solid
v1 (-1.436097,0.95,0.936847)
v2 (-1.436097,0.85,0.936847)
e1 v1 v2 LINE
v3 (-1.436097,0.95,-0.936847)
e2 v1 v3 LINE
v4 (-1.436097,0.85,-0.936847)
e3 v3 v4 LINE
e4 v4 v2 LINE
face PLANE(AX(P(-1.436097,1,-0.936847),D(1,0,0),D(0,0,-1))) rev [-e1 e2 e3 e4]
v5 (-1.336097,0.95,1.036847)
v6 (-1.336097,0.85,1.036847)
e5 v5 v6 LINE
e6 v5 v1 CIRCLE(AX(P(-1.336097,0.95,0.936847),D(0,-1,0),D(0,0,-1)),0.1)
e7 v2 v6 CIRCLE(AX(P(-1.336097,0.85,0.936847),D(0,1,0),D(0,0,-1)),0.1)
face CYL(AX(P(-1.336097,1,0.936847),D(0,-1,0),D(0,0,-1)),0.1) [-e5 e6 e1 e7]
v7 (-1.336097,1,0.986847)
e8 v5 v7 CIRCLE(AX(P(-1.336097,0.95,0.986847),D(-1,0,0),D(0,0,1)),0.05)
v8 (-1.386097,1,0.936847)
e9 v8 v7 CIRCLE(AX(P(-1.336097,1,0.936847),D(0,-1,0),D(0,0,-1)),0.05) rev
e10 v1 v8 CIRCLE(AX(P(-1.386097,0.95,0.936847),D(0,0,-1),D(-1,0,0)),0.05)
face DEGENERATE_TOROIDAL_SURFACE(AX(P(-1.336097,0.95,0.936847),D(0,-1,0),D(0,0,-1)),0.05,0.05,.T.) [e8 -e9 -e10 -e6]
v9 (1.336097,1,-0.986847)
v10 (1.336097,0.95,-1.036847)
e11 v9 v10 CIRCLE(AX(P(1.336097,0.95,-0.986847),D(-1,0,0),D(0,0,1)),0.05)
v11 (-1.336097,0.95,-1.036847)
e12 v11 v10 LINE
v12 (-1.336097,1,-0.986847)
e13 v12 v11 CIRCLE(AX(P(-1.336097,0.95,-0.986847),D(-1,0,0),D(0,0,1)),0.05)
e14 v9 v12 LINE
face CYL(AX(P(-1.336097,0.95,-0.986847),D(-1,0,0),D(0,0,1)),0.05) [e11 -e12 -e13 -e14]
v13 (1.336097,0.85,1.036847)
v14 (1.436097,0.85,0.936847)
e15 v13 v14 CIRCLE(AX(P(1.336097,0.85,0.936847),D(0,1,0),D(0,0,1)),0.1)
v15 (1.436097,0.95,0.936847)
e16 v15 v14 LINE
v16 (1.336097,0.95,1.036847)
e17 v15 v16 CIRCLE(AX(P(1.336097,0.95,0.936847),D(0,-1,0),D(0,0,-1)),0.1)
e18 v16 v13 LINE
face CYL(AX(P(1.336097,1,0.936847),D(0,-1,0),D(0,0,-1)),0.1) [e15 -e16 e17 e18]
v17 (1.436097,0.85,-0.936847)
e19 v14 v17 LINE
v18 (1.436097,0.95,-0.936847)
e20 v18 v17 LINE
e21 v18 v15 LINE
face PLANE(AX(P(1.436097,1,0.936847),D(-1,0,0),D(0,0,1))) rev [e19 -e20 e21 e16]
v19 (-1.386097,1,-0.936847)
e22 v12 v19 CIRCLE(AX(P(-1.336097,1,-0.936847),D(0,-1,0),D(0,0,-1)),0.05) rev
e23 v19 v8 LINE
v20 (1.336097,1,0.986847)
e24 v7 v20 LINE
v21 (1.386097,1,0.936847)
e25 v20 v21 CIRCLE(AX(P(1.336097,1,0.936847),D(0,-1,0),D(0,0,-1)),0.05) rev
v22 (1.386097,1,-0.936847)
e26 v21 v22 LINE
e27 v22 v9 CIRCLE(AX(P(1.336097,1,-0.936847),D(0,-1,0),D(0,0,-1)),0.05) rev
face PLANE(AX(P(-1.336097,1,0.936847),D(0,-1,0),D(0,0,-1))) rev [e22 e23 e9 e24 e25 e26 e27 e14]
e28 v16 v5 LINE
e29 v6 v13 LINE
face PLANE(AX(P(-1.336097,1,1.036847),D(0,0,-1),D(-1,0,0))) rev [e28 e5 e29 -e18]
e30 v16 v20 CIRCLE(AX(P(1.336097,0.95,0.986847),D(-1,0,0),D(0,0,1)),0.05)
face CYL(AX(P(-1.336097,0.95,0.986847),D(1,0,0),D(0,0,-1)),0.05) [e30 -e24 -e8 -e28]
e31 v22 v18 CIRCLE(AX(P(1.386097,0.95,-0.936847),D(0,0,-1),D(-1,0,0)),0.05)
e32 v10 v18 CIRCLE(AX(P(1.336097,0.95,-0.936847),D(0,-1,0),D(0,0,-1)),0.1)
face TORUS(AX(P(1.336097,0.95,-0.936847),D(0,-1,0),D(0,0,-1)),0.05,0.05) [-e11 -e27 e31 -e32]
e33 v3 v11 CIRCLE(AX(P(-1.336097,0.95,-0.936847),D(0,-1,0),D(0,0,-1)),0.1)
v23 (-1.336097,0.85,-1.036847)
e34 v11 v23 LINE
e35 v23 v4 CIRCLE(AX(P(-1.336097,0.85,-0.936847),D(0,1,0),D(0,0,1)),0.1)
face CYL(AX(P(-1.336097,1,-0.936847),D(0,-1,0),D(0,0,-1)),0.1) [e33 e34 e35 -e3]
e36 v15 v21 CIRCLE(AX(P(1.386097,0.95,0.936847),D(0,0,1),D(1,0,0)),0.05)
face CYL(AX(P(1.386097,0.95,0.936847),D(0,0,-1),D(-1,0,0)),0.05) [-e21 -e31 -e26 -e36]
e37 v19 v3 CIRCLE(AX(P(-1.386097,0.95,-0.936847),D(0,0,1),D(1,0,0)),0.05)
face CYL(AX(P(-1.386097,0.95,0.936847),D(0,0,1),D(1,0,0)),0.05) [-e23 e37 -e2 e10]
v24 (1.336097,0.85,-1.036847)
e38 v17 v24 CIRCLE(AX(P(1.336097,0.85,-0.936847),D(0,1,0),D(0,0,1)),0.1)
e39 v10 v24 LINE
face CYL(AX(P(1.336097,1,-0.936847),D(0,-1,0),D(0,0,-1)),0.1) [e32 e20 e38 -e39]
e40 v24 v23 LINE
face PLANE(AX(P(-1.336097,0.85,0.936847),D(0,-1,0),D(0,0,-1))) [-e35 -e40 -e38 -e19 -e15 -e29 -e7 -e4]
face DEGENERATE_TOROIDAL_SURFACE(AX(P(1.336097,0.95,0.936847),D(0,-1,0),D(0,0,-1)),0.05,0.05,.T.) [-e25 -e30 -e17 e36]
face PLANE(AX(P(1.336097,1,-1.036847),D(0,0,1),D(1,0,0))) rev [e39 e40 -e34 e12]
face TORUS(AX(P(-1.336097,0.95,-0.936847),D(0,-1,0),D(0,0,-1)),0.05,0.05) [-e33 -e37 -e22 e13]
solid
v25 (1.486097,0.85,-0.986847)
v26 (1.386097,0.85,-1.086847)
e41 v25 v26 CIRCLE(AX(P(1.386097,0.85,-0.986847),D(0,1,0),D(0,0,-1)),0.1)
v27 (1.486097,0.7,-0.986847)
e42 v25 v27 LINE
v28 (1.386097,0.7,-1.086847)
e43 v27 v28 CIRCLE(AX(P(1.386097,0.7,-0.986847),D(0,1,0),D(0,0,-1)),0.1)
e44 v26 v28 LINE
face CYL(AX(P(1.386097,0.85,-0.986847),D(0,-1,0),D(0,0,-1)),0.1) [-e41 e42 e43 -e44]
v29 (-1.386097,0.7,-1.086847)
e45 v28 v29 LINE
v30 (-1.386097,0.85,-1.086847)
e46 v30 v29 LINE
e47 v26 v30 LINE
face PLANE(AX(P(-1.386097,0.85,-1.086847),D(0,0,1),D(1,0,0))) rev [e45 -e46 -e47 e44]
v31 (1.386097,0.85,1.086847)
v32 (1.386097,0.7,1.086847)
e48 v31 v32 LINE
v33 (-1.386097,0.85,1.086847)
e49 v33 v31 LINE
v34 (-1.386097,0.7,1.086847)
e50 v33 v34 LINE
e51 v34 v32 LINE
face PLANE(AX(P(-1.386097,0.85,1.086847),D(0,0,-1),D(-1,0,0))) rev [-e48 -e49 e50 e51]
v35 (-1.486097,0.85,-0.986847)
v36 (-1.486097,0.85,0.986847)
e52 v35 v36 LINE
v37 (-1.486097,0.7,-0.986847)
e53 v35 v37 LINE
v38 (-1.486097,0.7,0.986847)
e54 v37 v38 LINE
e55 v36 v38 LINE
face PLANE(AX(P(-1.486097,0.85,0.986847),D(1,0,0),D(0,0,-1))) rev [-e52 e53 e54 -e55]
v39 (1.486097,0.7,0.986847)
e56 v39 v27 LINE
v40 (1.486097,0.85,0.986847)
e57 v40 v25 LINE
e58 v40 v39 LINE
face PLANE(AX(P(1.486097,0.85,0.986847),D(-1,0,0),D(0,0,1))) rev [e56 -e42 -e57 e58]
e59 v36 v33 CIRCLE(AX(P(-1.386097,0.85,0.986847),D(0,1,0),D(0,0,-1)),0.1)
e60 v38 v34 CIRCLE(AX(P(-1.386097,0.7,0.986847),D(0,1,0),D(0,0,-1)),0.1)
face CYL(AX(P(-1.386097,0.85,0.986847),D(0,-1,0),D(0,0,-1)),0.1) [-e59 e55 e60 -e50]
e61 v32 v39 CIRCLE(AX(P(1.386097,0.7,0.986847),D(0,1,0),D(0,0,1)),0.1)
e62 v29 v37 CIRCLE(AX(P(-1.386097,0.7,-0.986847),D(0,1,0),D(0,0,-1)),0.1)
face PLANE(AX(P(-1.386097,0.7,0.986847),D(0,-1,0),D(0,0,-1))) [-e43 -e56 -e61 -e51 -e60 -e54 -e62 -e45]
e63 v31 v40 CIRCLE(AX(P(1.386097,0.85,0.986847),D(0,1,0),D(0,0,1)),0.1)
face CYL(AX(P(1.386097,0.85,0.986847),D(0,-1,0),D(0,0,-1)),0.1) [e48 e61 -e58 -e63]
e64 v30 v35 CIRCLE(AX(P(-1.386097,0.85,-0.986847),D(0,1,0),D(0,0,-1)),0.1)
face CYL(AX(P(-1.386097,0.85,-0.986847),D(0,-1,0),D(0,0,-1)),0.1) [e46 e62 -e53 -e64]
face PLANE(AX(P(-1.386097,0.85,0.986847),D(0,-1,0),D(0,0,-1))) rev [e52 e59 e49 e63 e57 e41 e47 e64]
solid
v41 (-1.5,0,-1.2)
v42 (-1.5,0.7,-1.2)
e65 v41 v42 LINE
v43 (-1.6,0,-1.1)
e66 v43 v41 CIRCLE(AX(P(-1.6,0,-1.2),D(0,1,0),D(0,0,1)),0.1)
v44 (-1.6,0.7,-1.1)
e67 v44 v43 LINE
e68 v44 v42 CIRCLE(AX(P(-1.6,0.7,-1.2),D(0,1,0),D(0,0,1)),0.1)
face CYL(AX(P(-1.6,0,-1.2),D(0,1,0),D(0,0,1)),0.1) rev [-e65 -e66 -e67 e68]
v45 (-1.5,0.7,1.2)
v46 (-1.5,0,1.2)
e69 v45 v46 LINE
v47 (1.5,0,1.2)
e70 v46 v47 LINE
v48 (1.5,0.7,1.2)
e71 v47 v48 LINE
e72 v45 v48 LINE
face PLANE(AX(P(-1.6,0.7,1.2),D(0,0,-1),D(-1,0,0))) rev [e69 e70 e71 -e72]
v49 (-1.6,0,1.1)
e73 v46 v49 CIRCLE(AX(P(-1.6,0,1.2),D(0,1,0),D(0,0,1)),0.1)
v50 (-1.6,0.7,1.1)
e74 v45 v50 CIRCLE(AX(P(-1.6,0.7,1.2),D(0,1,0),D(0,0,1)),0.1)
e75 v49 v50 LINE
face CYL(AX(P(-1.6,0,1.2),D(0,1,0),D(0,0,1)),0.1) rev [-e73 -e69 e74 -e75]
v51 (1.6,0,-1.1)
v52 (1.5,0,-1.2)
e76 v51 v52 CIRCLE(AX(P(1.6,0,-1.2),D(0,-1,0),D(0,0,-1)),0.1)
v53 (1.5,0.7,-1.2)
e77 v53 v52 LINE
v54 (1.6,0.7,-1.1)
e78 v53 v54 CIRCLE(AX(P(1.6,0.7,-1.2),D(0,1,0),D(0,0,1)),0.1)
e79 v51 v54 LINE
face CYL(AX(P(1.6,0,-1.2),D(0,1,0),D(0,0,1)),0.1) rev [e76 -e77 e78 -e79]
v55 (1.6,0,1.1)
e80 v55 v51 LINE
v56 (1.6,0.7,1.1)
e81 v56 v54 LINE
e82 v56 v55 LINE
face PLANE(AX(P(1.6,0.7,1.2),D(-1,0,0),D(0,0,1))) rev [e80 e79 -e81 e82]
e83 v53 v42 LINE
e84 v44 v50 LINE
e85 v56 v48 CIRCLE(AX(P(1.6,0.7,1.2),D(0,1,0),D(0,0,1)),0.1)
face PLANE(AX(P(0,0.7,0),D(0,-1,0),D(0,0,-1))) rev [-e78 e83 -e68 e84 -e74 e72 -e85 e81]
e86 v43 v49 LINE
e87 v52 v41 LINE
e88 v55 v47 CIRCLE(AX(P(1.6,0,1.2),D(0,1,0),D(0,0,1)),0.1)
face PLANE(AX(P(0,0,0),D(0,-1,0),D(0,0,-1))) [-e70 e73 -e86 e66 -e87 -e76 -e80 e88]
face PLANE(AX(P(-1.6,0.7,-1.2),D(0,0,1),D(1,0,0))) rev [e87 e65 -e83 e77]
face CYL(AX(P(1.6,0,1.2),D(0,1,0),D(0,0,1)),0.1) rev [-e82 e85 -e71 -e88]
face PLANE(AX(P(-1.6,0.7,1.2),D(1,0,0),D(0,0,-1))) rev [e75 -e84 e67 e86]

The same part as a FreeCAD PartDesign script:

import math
import FreeCAD as App
import Part
import Sketcher
Q = App.Units.Quantity


def edges_at(feature, points):
    """Names of the edges that pass closest to the given points."""
    edges = feature.Shape.Edges
    near = lambda p: min(range(len(edges)), key=lambda i: edges[i].distToShape(Part.Vertex(*p))[0])
    return sorted({f"Edge{near(p) + 1}" for p in points})

doc = App.newDocument("Part")
body = doc.addObject("PartDesign::Body", "Body")

# Sketch on XZ plane
sketch1 = body.newObject("Sketcher::SketchObject", "Sketch")
sketch1.AttachmentSupport = (doc.getObject("XZ_Plane"), [""])
sketch1.MapMode = "FlatFace"
sketch1.addGeometry([
    Part.LineSegment(App.Vector(-1.6, -1.2, 0), App.Vector(-1.6, 1.2, 0)),
    Part.LineSegment(App.Vector(-1.6, 1.2, 0), App.Vector(1.6, 1.2, 0)),
    Part.LineSegment(App.Vector(1.6, 1.2, 0), App.Vector(1.6, -1.2, 0)),
    Part.LineSegment(App.Vector(1.6, -1.2, 0), App.Vector(-1.6, -1.2, 0)),
], False)
sketch1.addConstraint([
    Sketcher.Constraint("Coincident", 0, 2, 1, 1),
    Sketcher.Constraint("Coincident", 1, 2, 2, 1),
    Sketcher.Constraint("Coincident", 2, 2, 3, 1),
    Sketcher.Constraint("Coincident", 3, 2, 0, 1),
    Sketcher.Constraint("Vertical", 0),
    Sketcher.Constraint("Horizontal", 1),
    Sketcher.Constraint("Vertical", 2),
    Sketcher.Constraint("Horizontal", 3),
    Sketcher.Constraint("Symmetric", 0, 2, 2, 2, -1, 1),
    Sketcher.Constraint("DistanceX", 1, 1, 1, 2, Q("3.2 mm")),
    Sketcher.Constraint("DistanceY", 0, 1, 0, 2, Q("2.4 mm")),
])
pad1 = body.newObject("PartDesign::Pad", "Pad")
pad1.Profile = sketch1
pad1.Length = 0.7
pad1.Reversed = True

# Sketch on XZ plane
sketch2 = body.newObject("Sketcher::SketchObject", "Sketch001")
sketch2.AttachmentSupport = (doc.getObject("XZ_Plane"), [""])
sketch2.MapMode = "FlatFace"
sketch2.AttachmentOffset = App.Placement(App.Vector(0, 0, -0.7), App.Rotation())
sketch2.addGeometry([
    Part.Circle(App.Vector(-1.6, -1.2, 0), App.Vector(0, 0, 1), 0.1),
    Part.Circle(App.Vector(1.6, -1.2, 0), App.Vector(0, 0, 1), 0.1),
    Part.Circle(App.Vector(1.6, 1.2, 0), App.Vector(0, 0, 1), 0.1),
    Part.Circle(App.Vector(-1.6, 1.2, 0), App.Vector(0, 0, 1), 0.1),
], False)
sketch2.addConstraint([
    Sketcher.Constraint("Equal", 0, 1),
    Sketcher.Constraint("Equal", 1, 2),
    Sketcher.Constraint("Equal", 2, 3),
    Sketcher.Constraint("Symmetric", 0, 3, 2, 3, -1, 1),
    Sketcher.Constraint("Symmetric", 1, 3, 3, 3, -1, 1),
    Sketcher.Constraint("Symmetric", 0, 3, 1, 3, -2),
    Sketcher.Constraint("Diameter", 0, Q("0.2 mm")),
    Sketcher.Constraint("DistanceX", 0, 3, -1, 1, Q("1.6 mm")),
    Sketcher.Constraint("DistanceY", 0, 3, -1, 1, Q("1.2 mm")),
])
pocket1 = body.newObject("PartDesign::Pocket", "Pocket")
pocket1.Profile = sketch2
pocket1.Type = "ThroughAll"
pocket1.Reversed = True
body2 = doc.addObject("PartDesign::Body", "Body001")

# Sketch on XZ plane
sketch3 = body2.newObject("Sketcher::SketchObject", "Sketch002")
sketch3.AttachmentSupport = (doc.getObject("XZ_Plane001"), [""])
sketch3.MapMode = "FlatFace"
sketch3.AttachmentOffset = App.Placement(App.Vector(0, 0, -0.7), App.Rotation())
sketch3.addGeometry([
    Part.LineSegment(App.Vector(-1.39, 1.09, 0), App.Vector(1.39, 1.09, 0)),  # 0
    Part.ArcOfCircle(Part.Circle(App.Vector(1.39, 0.99, 0), App.Vector(0, 0, 1), 0.1), math.radians(0), math.radians(90)),  # 1
    Part.LineSegment(App.Vector(1.49, 0.99, 0), App.Vector(1.49, -0.99, 0)),  # 2
    Part.ArcOfCircle(Part.Circle(App.Vector(1.39, -0.99, 0), App.Vector(0, 0, 1), 0.1), math.radians(-90), math.radians(0)),  # 3
    Part.LineSegment(App.Vector(1.39, -1.09, 0), App.Vector(-1.39, -1.09, 0)),  # 4
    Part.ArcOfCircle(Part.Circle(App.Vector(-1.39, -0.99, 0), App.Vector(0, 0, 1), 0.1), math.radians(180), math.radians(270)),  # 5
    Part.LineSegment(App.Vector(-1.49, -0.99, 0), App.Vector(-1.49, 0.99, 0)),  # 6
    Part.ArcOfCircle(Part.Circle(App.Vector(-1.39, 0.99, 0), App.Vector(0, 0, 1), 0.1), math.radians(90), math.radians(180)),  # 7
], False)
sketch3.addConstraint([
    Sketcher.Constraint("Tangent", 0, 2, 1, 2),
    Sketcher.Constraint("Tangent", 1, 1, 2, 1),
    Sketcher.Constraint("Tangent", 2, 2, 3, 2),
    Sketcher.Constraint("Tangent", 3, 1, 4, 1),
    Sketcher.Constraint("Tangent", 4, 2, 5, 2),
    Sketcher.Constraint("Tangent", 5, 1, 6, 1),
    Sketcher.Constraint("Tangent", 6, 2, 7, 2),
    Sketcher.Constraint("Tangent", 7, 1, 0, 1),
    Sketcher.Constraint("Horizontal", 0),
    Sketcher.Constraint("Vertical", 2),
    Sketcher.Constraint("Horizontal", 4),
    Sketcher.Constraint("Vertical", 6),
    Sketcher.Constraint("Equal", 1, 3),
    Sketcher.Constraint("Equal", 3, 5),
    Sketcher.Constraint("Equal", 5, 7),
    Sketcher.Constraint("Symmetric", 1, 3, 5, 3, -1, 1),
    Sketcher.Constraint("Radius", 1, Q("0.1 mm")),
    Sketcher.Constraint("DistanceX", 0, 1, 0, 2, Q("2.772194 mm")),
    Sketcher.Constraint("DistanceY", 2, 2, 2, 1, Q("1.973694 mm")),
])
pad2 = body2.newObject("PartDesign::Pad", "Pad001")
pad2.Profile = sketch3
pad2.Length = 0.15
pad2.Reversed = True
body3 = doc.addObject("PartDesign::Body", "Body002")

# Sketch on XZ plane
sketch4 = body3.newObject("Sketcher::SketchObject", "Sketch003")
sketch4.AttachmentSupport = (doc.getObject("XZ_Plane002"), [""])
sketch4.MapMode = "FlatFace"
sketch4.AttachmentOffset = App.Placement(App.Vector(0, 0, -0.85), App.Rotation())
sketch4.addGeometry([
    Part.LineSegment(App.Vector(-1.34, 1.04, 0), App.Vector(1.34, 1.04, 0)),  # 0
    Part.ArcOfCircle(Part.Circle(App.Vector(1.34, 0.94, 0), App.Vector(0, 0, 1), 0.1), math.radians(0), math.radians(90)),  # 1
    Part.LineSegment(App.Vector(1.44, 0.94, 0), App.Vector(1.44, -0.94, 0)),  # 2
    Part.ArcOfCircle(Part.Circle(App.Vector(1.34, -0.94, 0), App.Vector(0, 0, 1), 0.1), math.radians(-90), math.radians(0)),  # 3
    Part.LineSegment(App.Vector(1.34, -1.04, 0), App.Vector(-1.34, -1.04, 0)),  # 4
    Part.ArcOfCircle(Part.Circle(App.Vector(-1.34, -0.94, 0), App.Vector(0, 0, 1), 0.1), math.radians(180), math.radians(270)),  # 5
    Part.LineSegment(App.Vector(-1.44, -0.94, 0), App.Vector(-1.44, 0.94, 0)),  # 6
    Part.ArcOfCircle(Part.Circle(App.Vector(-1.34, 0.94, 0), App.Vector(0, 0, 1), 0.1), math.radians(90), math.radians(180)),  # 7
], False)
sketch4.addConstraint([
    Sketcher.Constraint("Tangent", 0, 2, 1, 2),
    Sketcher.Constraint("Tangent", 1, 1, 2, 1),
    Sketcher.Constraint("Tangent", 2, 2, 3, 2),
    Sketcher.Constraint("Tangent", 3, 1, 4, 1),
    Sketcher.Constraint("Tangent", 4, 2, 5, 2),
    Sketcher.Constraint("Tangent", 5, 1, 6, 1),
    Sketcher.Constraint("Tangent", 6, 2, 7, 2),
    Sketcher.Constraint("Tangent", 7, 1, 0, 1),
    Sketcher.Constraint("Horizontal", 0),
    Sketcher.Constraint("Vertical", 2),
    Sketcher.Constraint("Horizontal", 4),
    Sketcher.Constraint("Vertical", 6),
    Sketcher.Constraint("Equal", 1, 3),
    Sketcher.Constraint("Equal", 3, 5),
    Sketcher.Constraint("Equal", 5, 7),
    Sketcher.Constraint("Symmetric", 1, 3, 5, 3, -1, 1),
    Sketcher.Constraint("Radius", 1, Q("0.1 mm")),
    Sketcher.Constraint("DistanceX", 0, 1, 0, 2, Q("2.672194 mm")),
    Sketcher.Constraint("DistanceY", 2, 2, 2, 1, Q("1.873694 mm")),
])
pad3 = body3.newObject("PartDesign::Pad", "Pad002")
pad3.Profile = sketch4
pad3.Length = 0.15
pad3.Reversed = True
doc.recompute()

fillet = body3.newObject("PartDesign::Fillet", "Fillet")
fillet.Base = (pad3, edges_at(pad3, [
    (1.407, 1, 1.008),
    (1.436, 1, 0),
    (1.407, 1, -1.008),
    (0, 1, -1.037),
    (-1.407, 1, -1.008),
    (-1.436, 1, 0),
    (-1.407, 1, 1.008),
    (0, 1, 1.037),
]))
fillet.Radius = 0.05

doc.recompute()
